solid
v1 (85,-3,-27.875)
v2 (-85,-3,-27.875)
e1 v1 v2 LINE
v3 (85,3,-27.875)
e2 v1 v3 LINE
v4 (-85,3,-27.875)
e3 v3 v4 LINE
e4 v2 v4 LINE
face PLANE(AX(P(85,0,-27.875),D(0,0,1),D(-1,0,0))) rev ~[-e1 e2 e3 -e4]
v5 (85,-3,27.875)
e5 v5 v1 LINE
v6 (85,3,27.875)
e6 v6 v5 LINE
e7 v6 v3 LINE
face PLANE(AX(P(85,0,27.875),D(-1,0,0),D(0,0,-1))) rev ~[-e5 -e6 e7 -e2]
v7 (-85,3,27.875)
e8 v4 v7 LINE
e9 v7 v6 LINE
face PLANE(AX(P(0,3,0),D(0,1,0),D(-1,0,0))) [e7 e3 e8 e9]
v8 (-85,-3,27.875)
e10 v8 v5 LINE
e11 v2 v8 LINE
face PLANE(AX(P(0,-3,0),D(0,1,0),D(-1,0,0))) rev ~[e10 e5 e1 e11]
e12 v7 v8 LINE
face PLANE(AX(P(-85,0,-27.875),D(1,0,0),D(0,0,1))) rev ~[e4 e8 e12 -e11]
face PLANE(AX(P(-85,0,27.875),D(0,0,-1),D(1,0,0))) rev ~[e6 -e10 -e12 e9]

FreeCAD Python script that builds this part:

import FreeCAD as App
import Part
import Sketcher


def add_polygon(sketch, points):
    """Adds a closed chain of lines whose ends are joined by coincident constraints."""
    first, n = sketch.GeometryCount, len(points)
    for a, b in zip(points, points[1:] + points[:1]):
        sketch.addGeometry(Part.LineSegment(App.Vector(*a, 0), App.Vector(*b, 0)), False)
    for i in range(n):
        sketch.addConstraint(Sketcher.Constraint("Coincident", first + i, 2, first + (i + 1) % n, 1))

doc = App.newDocument("Part")
body = doc.addObject("PartDesign::Body", "Body")

sketch1 = body.newObject("Sketcher::SketchObject", "Sketch")
sketch1.AttachmentSupport = (doc.getObject("XZ_Plane"), [""])
sketch1.MapMode = "FlatFace"
add_polygon(sketch1, [(85, 28), (85, -28), (-85, -28), (-85, 28)])
sketch1.addConstraint(Sketcher.Constraint("Vertical", 0))
sketch1.addConstraint(Sketcher.Constraint("Horizontal", 1))
sketch1.addConstraint(Sketcher.Constraint("Vertical", 2))
sketch1.addConstraint(Sketcher.Constraint("Horizontal", 3))
sketch1.addConstraint(Sketcher.Constraint("Symmetric", 0, 2, 2, 2, -1, 1))
sketch1.addConstraint(Sketcher.Constraint("DistanceX", 1, 2, 1, 1, 170.0))
sketch1.addConstraint(Sketcher.Constraint("DistanceY", 0, 2, 0, 1, 55.75))
pad1 = body.newObject("PartDesign::Pad", "Pad")
pad1.Profile = sketch1
pad1.Length = 6
pad1.Midplane = True

doc.recompute()
